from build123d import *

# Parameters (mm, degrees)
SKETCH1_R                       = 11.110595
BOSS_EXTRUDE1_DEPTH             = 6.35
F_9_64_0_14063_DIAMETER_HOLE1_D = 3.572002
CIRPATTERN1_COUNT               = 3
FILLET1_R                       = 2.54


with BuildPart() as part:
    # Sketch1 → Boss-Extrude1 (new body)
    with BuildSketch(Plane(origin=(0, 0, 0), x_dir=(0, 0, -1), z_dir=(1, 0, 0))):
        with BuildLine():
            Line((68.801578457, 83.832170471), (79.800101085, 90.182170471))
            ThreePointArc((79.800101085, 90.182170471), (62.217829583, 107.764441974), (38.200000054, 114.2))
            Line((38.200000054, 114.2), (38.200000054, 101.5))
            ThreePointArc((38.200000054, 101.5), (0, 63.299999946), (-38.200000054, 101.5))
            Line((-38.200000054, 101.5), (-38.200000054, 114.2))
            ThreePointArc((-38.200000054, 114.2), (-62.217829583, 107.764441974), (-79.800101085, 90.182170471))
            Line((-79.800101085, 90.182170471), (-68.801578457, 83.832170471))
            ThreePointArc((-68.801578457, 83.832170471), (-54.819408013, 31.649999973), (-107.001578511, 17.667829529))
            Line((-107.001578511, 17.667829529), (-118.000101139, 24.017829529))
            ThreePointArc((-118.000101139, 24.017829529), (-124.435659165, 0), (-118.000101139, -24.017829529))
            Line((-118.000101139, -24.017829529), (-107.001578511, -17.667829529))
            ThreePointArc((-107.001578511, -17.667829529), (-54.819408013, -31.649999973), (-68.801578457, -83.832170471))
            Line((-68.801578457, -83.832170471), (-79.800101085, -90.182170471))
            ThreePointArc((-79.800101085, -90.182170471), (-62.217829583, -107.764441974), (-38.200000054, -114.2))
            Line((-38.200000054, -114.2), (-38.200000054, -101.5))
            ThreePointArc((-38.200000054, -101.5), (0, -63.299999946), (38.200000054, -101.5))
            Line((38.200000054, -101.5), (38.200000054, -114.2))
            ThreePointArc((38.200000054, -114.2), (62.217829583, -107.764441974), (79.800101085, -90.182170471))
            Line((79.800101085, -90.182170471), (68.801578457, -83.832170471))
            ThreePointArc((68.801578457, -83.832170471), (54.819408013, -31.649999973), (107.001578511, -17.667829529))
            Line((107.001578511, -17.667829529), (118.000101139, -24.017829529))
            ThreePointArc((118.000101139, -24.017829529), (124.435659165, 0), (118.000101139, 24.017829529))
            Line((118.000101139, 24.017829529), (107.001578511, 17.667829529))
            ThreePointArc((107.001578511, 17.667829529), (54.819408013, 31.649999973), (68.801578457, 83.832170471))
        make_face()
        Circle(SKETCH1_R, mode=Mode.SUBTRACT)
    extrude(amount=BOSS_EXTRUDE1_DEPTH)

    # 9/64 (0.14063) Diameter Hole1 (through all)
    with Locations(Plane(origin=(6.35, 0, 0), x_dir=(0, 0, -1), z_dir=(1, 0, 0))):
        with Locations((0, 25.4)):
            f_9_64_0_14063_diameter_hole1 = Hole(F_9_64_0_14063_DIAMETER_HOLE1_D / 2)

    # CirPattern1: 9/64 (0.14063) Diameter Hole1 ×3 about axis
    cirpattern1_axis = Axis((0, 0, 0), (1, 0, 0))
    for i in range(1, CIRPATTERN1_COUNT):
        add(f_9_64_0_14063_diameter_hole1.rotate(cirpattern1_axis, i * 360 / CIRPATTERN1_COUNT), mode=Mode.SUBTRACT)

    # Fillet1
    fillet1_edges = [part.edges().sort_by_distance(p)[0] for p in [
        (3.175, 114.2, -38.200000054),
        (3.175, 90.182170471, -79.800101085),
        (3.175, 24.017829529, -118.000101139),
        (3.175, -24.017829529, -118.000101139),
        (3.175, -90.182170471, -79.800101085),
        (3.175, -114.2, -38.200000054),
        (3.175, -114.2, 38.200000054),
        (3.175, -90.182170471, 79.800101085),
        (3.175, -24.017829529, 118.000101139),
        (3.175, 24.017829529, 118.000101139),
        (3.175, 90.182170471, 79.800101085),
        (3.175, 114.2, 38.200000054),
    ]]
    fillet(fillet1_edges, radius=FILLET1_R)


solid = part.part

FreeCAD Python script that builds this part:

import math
import FreeCAD as App
import Part
import Sketcher
Q = App.Units.Quantity


def edges_at(feature, points):
    """Names of the edges that pass closest to the given points."""
    edges = feature.Shape.Edges
    near = lambda p: min(range(len(edges)), key=lambda i: edges[i].distToShape(Part.Vertex(*p))[0])
    return sorted({f"Edge{near(p) + 1}" for p in points})

doc = App.newDocument("Part")
body = doc.addObject("PartDesign::Body", "Body")

sketch1 = body.newObject("Sketcher::SketchObject", "Sketch")
sketch1.AttachmentSupport = (doc.getObject("YZ_Plane"), [""])
sketch1.MapMode = "FlatFace"
sketch1.addGeometry(Part.LineSegment(App.Vector(84, -69, 0), App.Vector(90, -80, 0)), False)
sketch1.addGeometry(Part.ArcOfCircle(Part.Circle(App.Vector(66, -38, 0), App.Vector(0, 0, 1), 48), math.radians(-60), math.radians(0)), False)
sketch1.addGeometry(Part.LineSegment(App.Vector(114, -38, 0), App.Vector(102, -38, 0)), False)
sketch1.addGeometry(Part.ArcOfCircle(Part.Circle(App.Vector(102, 0, 0), App.Vector(0, 0, 1), 38), math.radians(90), math.radians(270)), False)
sketch1.addGeometry(Part.LineSegment(App.Vector(102, 38, 0), App.Vector(114, 38, 0)), False)
sketch1.addGeometry(Part.ArcOfCircle(Part.Circle(App.Vector(66, 38, 0), App.Vector(0, 0, 1), 48), math.radians(0), math.radians(60)), False)
sketch1.addGeometry(Part.LineSegment(App.Vector(90, 80, 0), App.Vector(84, 69, 0)), False)
sketch1.addGeometry(Part.ArcOfCircle(Part.Circle(App.Vector(51, 88, 0), App.Vector(0, 0, 1), 38), math.radians(150), math.radians(330)), False)
sketch1.addGeometry(Part.LineSegment(App.Vector(18, 107, 0), App.Vector(24, 118, 0)), False)
sketch1.addGeometry(Part.ArcOfCircle(Part.Circle(App.Vector(0, 76, 0), App.Vector(0, 0, 1), 48), math.radians(60), math.radians(120)), False)
sketch1.addGeometry(Part.LineSegment(App.Vector(-24, 118, 0), App.Vector(-18, 107, 0)), False)
sketch1.addGeometry(Part.ArcOfCircle(Part.Circle(App.Vector(-51, 88, 0), App.Vector(0, 0, 1), 38), math.radians(-150), math.radians(30)), False)
sketch1.addGeometry(Part.LineSegment(App.Vector(-84, 69, 0), App.Vector(-90, 80, 0)), False)
sketch1.addGeometry(Part.ArcOfCircle(Part.Circle(App.Vector(-66, 38, 0), App.Vector(0, 0, 1), 48), math.radians(120), math.radians(180)), False)
sketch1.addGeometry(Part.LineSegment(App.Vector(-114, 38, 0), App.Vector(-102, 38, 0)), False)
sketch1.addGeometry(Part.ArcOfCircle(Part.Circle(App.Vector(-102, 0, 0), App.Vector(0, 0, 1), 38), math.radians(-90), math.radians(90)), False)
sketch1.addGeometry(Part.LineSegment(App.Vector(-102, -38, 0), App.Vector(-114, -38, 0)), False)
sketch1.addGeometry(Part.ArcOfCircle(Part.Circle(App.Vector(-66, -38, 0), App.Vector(0, 0, 1), 48), math.radians(180), math.radians(240)), False)
sketch1.addGeometry(Part.LineSegment(App.Vector(-90, -80, 0), App.Vector(-84, -69, 0)), False)
sketch1.addGeometry(Part.ArcOfCircle(Part.Circle(App.Vector(-51, -88, 0), App.Vector(0, 0, 1), 38), math.radians(-30), math.radians(150)), False)
sketch1.addGeometry(Part.LineSegment(App.Vector(-18, -107, 0), App.Vector(-24, -118, 0)), False)
sketch1.addGeometry(Part.ArcOfCircle(Part.Circle(App.Vector(0, -76, 0), App.Vector(0, 0, 1), 48), math.radians(-120), math.radians(-60)), False)
sketch1.addGeometry(Part.LineSegment(App.Vector(24, -118, 0), App.Vector(18, -107, 0)), False)
sketch1.addGeometry(Part.ArcOfCircle(Part.Circle(App.Vector(51, -88, 0), App.Vector(0, 0, 1), 38), math.radians(30), math.radians(210)), False)
sketch1.addGeometry(Part.Circle(App.Vector(0, 0, 0), App.Vector(0, 0, 1), 11), False)
sketch1.addConstraint(Sketcher.Constraint("Coincident", 0, 2, 1, 1))
sketch1.addConstraint(Sketcher.Constraint("Coincident", 1, 2, 2, 1))
sketch1.addConstraint(Sketcher.Constraint("Tangent", 2, 2, 3, 2))
sketch1.addConstraint(Sketcher.Constraint("Tangent", 3, 1, 4, 1))
sketch1.addConstraint(Sketcher.Constraint("Coincident", 4, 2, 5, 1))
sketch1.addConstraint(Sketcher.Constraint("Coincident", 5, 2, 6, 1))
sketch1.addConstraint(Sketcher.Constraint("Tangent", 6, 2, 7, 2))
sketch1.addConstraint(Sketcher.Constraint("Tangent", 7, 1, 8, 1))
sketch1.addConstraint(Sketcher.Constraint("Coincident", 8, 2, 9, 1))
sketch1.addConstraint(Sketcher.Constraint("Coincident", 9, 2, 10, 1))
sketch1.addConstraint(Sketcher.Constraint("Tangent", 10, 2, 11, 2))
sketch1.addConstraint(Sketcher.Constraint("Tangent", 11, 1, 12, 1))
sketch1.addConstraint(Sketcher.Constraint("Coincident", 12, 2, 13, 1))
sketch1.addConstraint(Sketcher.Constraint("Coincident", 13, 2, 14, 1))
sketch1.addConstraint(Sketcher.Constraint("Tangent", 14, 2, 15, 2))
sketch1.addConstraint(Sketcher.Constraint("Tangent", 15, 1, 16, 1))
sketch1.addConstraint(Sketcher.Constraint("Coincident", 16, 2, 17, 1))
sketch1.addConstraint(Sketcher.Constraint("Coincident", 17, 2, 18, 1))
sketch1.addConstraint(Sketcher.Constraint("Tangent", 18, 2, 19, 2))
sketch1.addConstraint(Sketcher.Constraint("Tangent", 19, 1, 20, 1))
sketch1.addConstraint(Sketcher.Constraint("Coincident", 20, 2, 21, 1))
sketch1.addConstraint(Sketcher.Constraint("Coincident", 21, 2, 22, 1))
sketch1.addConstraint(Sketcher.Constraint("Tangent", 22, 2, 23, 2))
sketch1.addConstraint(Sketcher.Constraint("Tangent", 23, 1, 0, 1))
sketch1.addConstraint(Sketcher.Constraint("Horizontal", 2))
sketch1.addConstraint(Sketcher.Constraint("Horizontal", 4))
sketch1.addConstraint(Sketcher.Constraint("Horizontal", 14))
sketch1.addConstraint(Sketcher.Constraint("Horizontal", 16))
sketch1.addConstraint(Sketcher.Constraint("Coincident", 24, 3, -1, 1))
sketch1.addConstraint(Sketcher.Constraint("Equal", 1, 5))
sketch1.addConstraint(Sketcher.Constraint("Equal", 3, 7))
sketch1.addConstraint(Sketcher.Constraint("Equal", 5, 9))
sketch1.addConstraint(Sketcher.Constraint("Equal", 7, 11))
sketch1.addConstraint(Sketcher.Constraint("Equal", 9, 13))
sketch1.addConstraint(Sketcher.Constraint("Equal", 11, 15))
sketch1.addConstraint(Sketcher.Constraint("Equal", 13, 17))
sketch1.addConstraint(Sketcher.Constraint("Equal", 15, 19))
sketch1.addConstraint(Sketcher.Constraint("Equal", 17, 21))
sketch1.addConstraint(Sketcher.Constraint("Equal", 19, 23))
sketch1.addConstraint(Sketcher.Constraint("Symmetric", 1, 3, 13, 3, -1, 1))
sketch1.addConstraint(Sketcher.Constraint("Symmetric", 3, 3, 15, 3, -1, 1))
sketch1.addConstraint(Sketcher.Constraint("Symmetric", 5, 3, 17, 3, -1, 1))
sketch1.addConstraint(Sketcher.Constraint("Symmetric", 7, 3, 19, 3, -1, 1))
sketch1.addConstraint(Sketcher.Constraint("Symmetric", 9, 3, 21, 3, -1, 1))
sketch1.addConstraint(Sketcher.Constraint("Symmetric", 11, 3, 23, 3, -1, 1))
sketch1.addConstraint(Sketcher.Constraint("Symmetric", 7, 3, 11, 3, -2))
sketch1.addConstraint(Sketcher.Constraint("Symmetric", 5, 3, 13, 3, -2))
sketch1.addConstraint(Sketcher.Constraint("Symmetric", 8, 2, 9, 2, -2))
sketch1.addConstraint(Sketcher.Constraint("PointOnObject", 3, 3, -1))
sketch1.addConstraint(Sketcher.Constraint("Parallel", 6, 8))
sketch1.addConstraint(Sketcher.Constraint("Parallel", 0, 10))
sketch1.addConstraint(Sketcher.Constraint("Parallel", 10, 12))
sketch1.addConstraint(Sketcher.Constraint("Parallel", 8, 18))
sketch1.addConstraint(Sketcher.Constraint("Parallel", 18, 20))
sketch1.addConstraint(Sketcher.Constraint("Parallel", 12, 22))
sketch1.addConstraint(Sketcher.Constraint("Horizontal", 17, 3, 1, 2))
sketch1.addConstraint(Sketcher.Constraint("Equal", 6, 8))
sketch1.addConstraint(Sketcher.Constraint("DistanceX", 2, 2, 2, 1, Q("0.5 in")))
sketch1.addConstraint(Sketcher.Constraint("Angle", 0, Q("-60 deg")))
sketch1.addConstraint(Sketcher.Constraint("Distance", 0, Q("0.5 in")))
sketch1.addConstraint(Sketcher.Constraint("Radius", 3, 38.2))
sketch1.addConstraint(Sketcher.Constraint("Diameter", 24, 22.22119))
sketch1.addConstraint(Sketcher.Constraint("Radius", 1, 48.035659))
sketch1.addConstraint(Sketcher.Constraint("DistanceX", -1, 1, 3, 3, 101.5))
sketch1.addConstraint(Sketcher.Constraint("DistanceX", -1, 1, 7, 3, 50.75))
pad1 = body.newObject("PartDesign::Pad", "Pad")
pad1.Profile = sketch1
pad1.Length = Q("0.25 in")

sketch2 = body.newObject("Sketcher::SketchObject", "Sketch001")
sketch2.AttachmentSupport = (doc.getObject("YZ_Plane"), [""])
sketch2.MapMode = "FlatFace"
sketch2.AttachmentOffset = App.Placement(App.Vector(0, 0, 0.25 * 25.4), App.Rotation())
sketch2.addGeometry(Part.Circle(App.Vector(25.4, 0, 0), App.Vector(0, 0, 1), 1.8), False)
sketch2.addConstraint(Sketcher.Constraint("PointOnObject", 0, 3, -1))
sketch2.addConstraint(Sketcher.Constraint("DistanceX", -1, 1, 0, 3, Q("1 in")))
sketch2.addConstraint(Sketcher.Constraint("Diameter", 0, 3.572002))
doc.recompute()
hole = body.newObject("PartDesign::Hole", "Hole")
hole.Profile = sketch2
hole.ThreadType = "None"
hole.Diameter = 3.572002
hole.DepthType = "ThroughAll"
doc.recompute()

polarpattern = body.newObject("PartDesign::PolarPattern", "PolarPattern")
polarpattern.Originals = [hole]
polarpattern.Axis = (doc.getObject("X_Axis"), [""])
polarpattern.Angle = 360
polarpattern.Occurrences = 3
body.Tip = polarpattern
doc.recompute()

fillet = body.newObject("PartDesign::Fillet", "Fillet")
fillet.Base = (polarpattern, edges_at(polarpattern, [
    (3.175, 114.2, -38.2),
    (3.175, 90.182, -79.8),
    (3.175, 24.018, -118),
    (3.175, -24.018, -118),
    (3.175, -90.182, -79.8),
    (3.175, -114.2, -38.2),
    (3.175, -114.2, 38.2),
    (3.175, -90.182, 79.8),
    (3.175, -24.018, 118),
    (3.175, 24.018, 118),
    (3.175, 90.182, 79.8),
    (3.175, 114.2, 38.2),
]))
fillet.Radius = Q("0.1 in")

doc.recompute()
